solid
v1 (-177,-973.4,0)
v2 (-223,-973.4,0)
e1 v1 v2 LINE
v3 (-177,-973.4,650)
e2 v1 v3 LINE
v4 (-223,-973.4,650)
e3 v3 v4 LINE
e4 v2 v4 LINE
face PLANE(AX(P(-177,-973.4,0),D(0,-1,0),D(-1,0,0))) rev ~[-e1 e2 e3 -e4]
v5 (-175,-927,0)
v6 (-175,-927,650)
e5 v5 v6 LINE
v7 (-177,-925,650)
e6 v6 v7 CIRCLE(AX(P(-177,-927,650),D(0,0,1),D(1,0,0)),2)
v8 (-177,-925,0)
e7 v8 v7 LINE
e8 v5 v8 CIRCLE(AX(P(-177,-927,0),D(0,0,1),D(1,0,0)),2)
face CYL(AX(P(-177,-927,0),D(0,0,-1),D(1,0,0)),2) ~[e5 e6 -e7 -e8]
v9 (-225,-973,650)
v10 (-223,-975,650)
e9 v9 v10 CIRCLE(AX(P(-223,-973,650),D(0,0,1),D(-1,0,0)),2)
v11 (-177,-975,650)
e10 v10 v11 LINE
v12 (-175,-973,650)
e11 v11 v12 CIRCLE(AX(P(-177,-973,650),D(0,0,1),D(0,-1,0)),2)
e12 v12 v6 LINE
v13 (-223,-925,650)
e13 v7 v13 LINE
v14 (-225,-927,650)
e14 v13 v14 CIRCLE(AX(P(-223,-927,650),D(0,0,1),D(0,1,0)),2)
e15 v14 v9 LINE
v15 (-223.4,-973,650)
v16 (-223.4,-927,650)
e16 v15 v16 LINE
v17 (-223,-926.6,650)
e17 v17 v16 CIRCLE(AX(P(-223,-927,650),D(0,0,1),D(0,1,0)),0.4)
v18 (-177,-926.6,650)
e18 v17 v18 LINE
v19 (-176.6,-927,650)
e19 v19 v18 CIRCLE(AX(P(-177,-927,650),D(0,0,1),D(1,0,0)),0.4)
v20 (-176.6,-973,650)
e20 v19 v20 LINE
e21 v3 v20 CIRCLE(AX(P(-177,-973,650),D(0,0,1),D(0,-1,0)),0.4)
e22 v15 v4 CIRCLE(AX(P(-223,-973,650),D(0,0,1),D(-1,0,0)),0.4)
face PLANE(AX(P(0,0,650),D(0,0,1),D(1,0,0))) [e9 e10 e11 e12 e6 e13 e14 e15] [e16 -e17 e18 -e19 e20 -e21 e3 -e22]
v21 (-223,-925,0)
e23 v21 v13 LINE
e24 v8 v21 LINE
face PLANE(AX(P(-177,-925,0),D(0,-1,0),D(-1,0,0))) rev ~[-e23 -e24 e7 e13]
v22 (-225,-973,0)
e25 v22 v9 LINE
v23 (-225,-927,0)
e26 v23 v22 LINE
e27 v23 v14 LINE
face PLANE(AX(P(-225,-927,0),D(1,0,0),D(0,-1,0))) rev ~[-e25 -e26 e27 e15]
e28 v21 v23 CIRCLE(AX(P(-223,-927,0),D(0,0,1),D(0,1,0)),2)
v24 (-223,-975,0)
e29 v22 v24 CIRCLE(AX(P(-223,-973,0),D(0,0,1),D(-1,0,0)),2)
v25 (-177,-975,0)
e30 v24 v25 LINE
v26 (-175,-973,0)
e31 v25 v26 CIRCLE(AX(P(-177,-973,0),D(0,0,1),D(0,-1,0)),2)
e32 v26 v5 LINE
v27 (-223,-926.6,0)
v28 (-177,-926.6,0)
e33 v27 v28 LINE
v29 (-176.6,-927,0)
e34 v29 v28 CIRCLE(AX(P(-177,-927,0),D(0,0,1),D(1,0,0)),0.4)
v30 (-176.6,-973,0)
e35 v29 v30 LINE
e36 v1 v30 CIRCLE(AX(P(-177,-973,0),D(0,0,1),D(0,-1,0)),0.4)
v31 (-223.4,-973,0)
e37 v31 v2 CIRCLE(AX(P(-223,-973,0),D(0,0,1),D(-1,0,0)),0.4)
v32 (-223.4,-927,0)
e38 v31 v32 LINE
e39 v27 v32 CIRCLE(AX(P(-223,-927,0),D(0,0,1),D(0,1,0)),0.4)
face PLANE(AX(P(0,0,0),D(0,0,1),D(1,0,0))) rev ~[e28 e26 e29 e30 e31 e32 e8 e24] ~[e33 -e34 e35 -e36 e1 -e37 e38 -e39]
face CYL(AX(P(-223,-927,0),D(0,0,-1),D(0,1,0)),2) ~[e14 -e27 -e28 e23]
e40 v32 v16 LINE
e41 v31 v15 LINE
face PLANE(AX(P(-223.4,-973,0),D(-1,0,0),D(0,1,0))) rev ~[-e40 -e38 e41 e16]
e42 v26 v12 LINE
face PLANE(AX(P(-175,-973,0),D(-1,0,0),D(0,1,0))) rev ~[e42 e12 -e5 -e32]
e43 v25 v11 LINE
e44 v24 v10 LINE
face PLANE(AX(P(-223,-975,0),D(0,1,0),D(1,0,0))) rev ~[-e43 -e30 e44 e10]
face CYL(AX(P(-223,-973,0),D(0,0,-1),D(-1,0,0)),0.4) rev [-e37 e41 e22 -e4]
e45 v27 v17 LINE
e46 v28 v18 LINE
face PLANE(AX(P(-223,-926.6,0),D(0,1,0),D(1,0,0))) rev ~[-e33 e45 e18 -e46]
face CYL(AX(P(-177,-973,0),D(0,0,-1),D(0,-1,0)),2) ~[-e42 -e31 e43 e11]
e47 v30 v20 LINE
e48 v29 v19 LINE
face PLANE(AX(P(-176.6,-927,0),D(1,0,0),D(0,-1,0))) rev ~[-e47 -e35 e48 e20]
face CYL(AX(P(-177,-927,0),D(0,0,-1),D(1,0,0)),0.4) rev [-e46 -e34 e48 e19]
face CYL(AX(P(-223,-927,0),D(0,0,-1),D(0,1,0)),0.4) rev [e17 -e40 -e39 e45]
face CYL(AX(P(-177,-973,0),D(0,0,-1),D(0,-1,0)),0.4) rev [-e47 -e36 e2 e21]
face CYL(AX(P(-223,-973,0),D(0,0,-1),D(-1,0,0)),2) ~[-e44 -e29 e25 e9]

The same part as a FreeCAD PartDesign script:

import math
import FreeCAD as App
import Part
import Sketcher

doc = App.newDocument("Part")
body = doc.addObject("PartDesign::Body", "Body")

sketch1 = body.newObject("Sketcher::SketchObject", "Sketch")
sketch1.AttachmentSupport = (doc.getObject("XY_Plane"), [""])
sketch1.MapMode = "FlatFace"
sketch1.addGeometry(Part.ArcOfCircle(Part.Circle(App.Vector(-223, -973, 0), App.Vector(0, 0, 1), 2), math.radians(180), math.radians(270)), False)
sketch1.addGeometry(Part.LineSegment(App.Vector(-223, -975, 0), App.Vector(-177, -975, 0)), False)
sketch1.addGeometry(Part.ArcOfCircle(Part.Circle(App.Vector(-177, -973, 0), App.Vector(0, 0, 1), 2), math.radians(-90), math.radians(0)), False)
sketch1.addGeometry(Part.LineSegment(App.Vector(-175, -973, 0), App.Vector(-175, -927, 0)), False)
sketch1.addGeometry(Part.ArcOfCircle(Part.Circle(App.Vector(-177, -927, 0), App.Vector(0, 0, 1), 2), math.radians(0), math.radians(90)), False)
sketch1.addGeometry(Part.LineSegment(App.Vector(-177, -925, 0), App.Vector(-223, -925, 0)), False)
sketch1.addGeometry(Part.ArcOfCircle(Part.Circle(App.Vector(-223, -927, 0), App.Vector(0, 0, 1), 2), math.radians(90), math.radians(180)), False)
sketch1.addGeometry(Part.LineSegment(App.Vector(-225, -927, 0), App.Vector(-225, -973, 0)), False)
sketch1.addGeometry(Part.ArcOfCircle(Part.Circle(App.Vector(-223, -973, 0), App.Vector(0, 0, 1), 0.4), math.radians(180), math.radians(270)), False)
sketch1.addGeometry(Part.LineSegment(App.Vector(-223.4, -973, 0), App.Vector(-223.4, -927, 0)), False)
sketch1.addGeometry(Part.ArcOfCircle(Part.Circle(App.Vector(-223, -927, 0), App.Vector(0, 0, 1), 0.4), math.radians(90), math.radians(180)), False)
sketch1.addGeometry(Part.LineSegment(App.Vector(-223, -926.6, 0), App.Vector(-177, -926.6, 0)), False)
sketch1.addGeometry(Part.ArcOfCircle(Part.Circle(App.Vector(-177, -927, 0), App.Vector(0, 0, 1), 0.4), math.radians(0), math.radians(90)), False)
sketch1.addGeometry(Part.LineSegment(App.Vector(-176.6, -927, 0), App.Vector(-176.6, -973, 0)), False)
sketch1.addGeometry(Part.ArcOfCircle(Part.Circle(App.Vector(-177, -973, 0), App.Vector(0, 0, 1), 0.4), math.radians(-90), math.radians(0)), False)
sketch1.addGeometry(Part.LineSegment(App.Vector(-177, -973.4, 0), App.Vector(-223, -973.4, 0)), False)
sketch1.addConstraint(Sketcher.Constraint("Tangent", 0, 2, 1, 1))
sketch1.addConstraint(Sketcher.Constraint("Tangent", 1, 2, 2, 1))
sketch1.addConstraint(Sketcher.Constraint("Tangent", 2, 2, 3, 1))
sketch1.addConstraint(Sketcher.Constraint("Tangent", 3, 2, 4, 1))
sketch1.addConstraint(Sketcher.Constraint("Tangent", 4, 2, 5, 1))
sketch1.addConstraint(Sketcher.Constraint("Tangent", 5, 2, 6, 1))
sketch1.addConstraint(Sketcher.Constraint("Tangent", 6, 2, 7, 1))
sketch1.addConstraint(Sketcher.Constraint("Tangent", 7, 2, 0, 1))
sketch1.addConstraint(Sketcher.Constraint("Tangent", 8, 1, 9, 1))
sketch1.addConstraint(Sketcher.Constraint("Tangent", 9, 2, 10, 2))
sketch1.addConstraint(Sketcher.Constraint("Tangent", 10, 1, 11, 1))
sketch1.addConstraint(Sketcher.Constraint("Tangent", 11, 2, 12, 2))
sketch1.addConstraint(Sketcher.Constraint("Tangent", 12, 1, 13, 1))
sketch1.addConstraint(Sketcher.Constraint("Tangent", 13, 2, 14, 2))
sketch1.addConstraint(Sketcher.Constraint("Tangent", 14, 1, 15, 1))
sketch1.addConstraint(Sketcher.Constraint("Tangent", 15, 2, 8, 2))
sketch1.addConstraint(Sketcher.Constraint("Horizontal", 1))
sketch1.addConstraint(Sketcher.Constraint("Vertical", 3))
sketch1.addConstraint(Sketcher.Constraint("Horizontal", 5))
sketch1.addConstraint(Sketcher.Constraint("Vertical", 7))
sketch1.addConstraint(Sketcher.Constraint("Vertical", 9))
sketch1.addConstraint(Sketcher.Constraint("Horizontal", 11))
sketch1.addConstraint(Sketcher.Constraint("Vertical", 13))
sketch1.addConstraint(Sketcher.Constraint("Horizontal", 15))
sketch1.addConstraint(Sketcher.Constraint("Coincident", 8, 3, 0, 3))
sketch1.addConstraint(Sketcher.Constraint("Coincident", 10, 3, 6, 3))
sketch1.addConstraint(Sketcher.Constraint("Coincident", 12, 3, 4, 3))
sketch1.addConstraint(Sketcher.Constraint("Equal", 0, 2))
sketch1.addConstraint(Sketcher.Constraint("Equal", 2, 4))
sketch1.addConstraint(Sketcher.Constraint("Equal", 4, 6))
sketch1.addConstraint(Sketcher.Constraint("Equal", 12, 14))
sketch1.addConstraint(Sketcher.Constraint("Equal", 15, 3))
sketch1.addConstraint(Sketcher.Constraint("Radius", 0, 2.0))
sketch1.addConstraint(Sketcher.Constraint("Radius", 8, 0.4))
sketch1.addConstraint(Sketcher.Constraint("DistanceX", 1, 1, 1, 2, 46.0))
sketch1.addConstraint(Sketcher.Constraint("DistanceX", 0, 3, -1, 1, 223.0))
sketch1.addConstraint(Sketcher.Constraint("DistanceY", 0, 3, -1, 1, 973.0))
pad1 = body.newObject("PartDesign::Pad", "Pad")
pad1.Profile = sketch1
pad1.Length = 650

doc.recompute()
